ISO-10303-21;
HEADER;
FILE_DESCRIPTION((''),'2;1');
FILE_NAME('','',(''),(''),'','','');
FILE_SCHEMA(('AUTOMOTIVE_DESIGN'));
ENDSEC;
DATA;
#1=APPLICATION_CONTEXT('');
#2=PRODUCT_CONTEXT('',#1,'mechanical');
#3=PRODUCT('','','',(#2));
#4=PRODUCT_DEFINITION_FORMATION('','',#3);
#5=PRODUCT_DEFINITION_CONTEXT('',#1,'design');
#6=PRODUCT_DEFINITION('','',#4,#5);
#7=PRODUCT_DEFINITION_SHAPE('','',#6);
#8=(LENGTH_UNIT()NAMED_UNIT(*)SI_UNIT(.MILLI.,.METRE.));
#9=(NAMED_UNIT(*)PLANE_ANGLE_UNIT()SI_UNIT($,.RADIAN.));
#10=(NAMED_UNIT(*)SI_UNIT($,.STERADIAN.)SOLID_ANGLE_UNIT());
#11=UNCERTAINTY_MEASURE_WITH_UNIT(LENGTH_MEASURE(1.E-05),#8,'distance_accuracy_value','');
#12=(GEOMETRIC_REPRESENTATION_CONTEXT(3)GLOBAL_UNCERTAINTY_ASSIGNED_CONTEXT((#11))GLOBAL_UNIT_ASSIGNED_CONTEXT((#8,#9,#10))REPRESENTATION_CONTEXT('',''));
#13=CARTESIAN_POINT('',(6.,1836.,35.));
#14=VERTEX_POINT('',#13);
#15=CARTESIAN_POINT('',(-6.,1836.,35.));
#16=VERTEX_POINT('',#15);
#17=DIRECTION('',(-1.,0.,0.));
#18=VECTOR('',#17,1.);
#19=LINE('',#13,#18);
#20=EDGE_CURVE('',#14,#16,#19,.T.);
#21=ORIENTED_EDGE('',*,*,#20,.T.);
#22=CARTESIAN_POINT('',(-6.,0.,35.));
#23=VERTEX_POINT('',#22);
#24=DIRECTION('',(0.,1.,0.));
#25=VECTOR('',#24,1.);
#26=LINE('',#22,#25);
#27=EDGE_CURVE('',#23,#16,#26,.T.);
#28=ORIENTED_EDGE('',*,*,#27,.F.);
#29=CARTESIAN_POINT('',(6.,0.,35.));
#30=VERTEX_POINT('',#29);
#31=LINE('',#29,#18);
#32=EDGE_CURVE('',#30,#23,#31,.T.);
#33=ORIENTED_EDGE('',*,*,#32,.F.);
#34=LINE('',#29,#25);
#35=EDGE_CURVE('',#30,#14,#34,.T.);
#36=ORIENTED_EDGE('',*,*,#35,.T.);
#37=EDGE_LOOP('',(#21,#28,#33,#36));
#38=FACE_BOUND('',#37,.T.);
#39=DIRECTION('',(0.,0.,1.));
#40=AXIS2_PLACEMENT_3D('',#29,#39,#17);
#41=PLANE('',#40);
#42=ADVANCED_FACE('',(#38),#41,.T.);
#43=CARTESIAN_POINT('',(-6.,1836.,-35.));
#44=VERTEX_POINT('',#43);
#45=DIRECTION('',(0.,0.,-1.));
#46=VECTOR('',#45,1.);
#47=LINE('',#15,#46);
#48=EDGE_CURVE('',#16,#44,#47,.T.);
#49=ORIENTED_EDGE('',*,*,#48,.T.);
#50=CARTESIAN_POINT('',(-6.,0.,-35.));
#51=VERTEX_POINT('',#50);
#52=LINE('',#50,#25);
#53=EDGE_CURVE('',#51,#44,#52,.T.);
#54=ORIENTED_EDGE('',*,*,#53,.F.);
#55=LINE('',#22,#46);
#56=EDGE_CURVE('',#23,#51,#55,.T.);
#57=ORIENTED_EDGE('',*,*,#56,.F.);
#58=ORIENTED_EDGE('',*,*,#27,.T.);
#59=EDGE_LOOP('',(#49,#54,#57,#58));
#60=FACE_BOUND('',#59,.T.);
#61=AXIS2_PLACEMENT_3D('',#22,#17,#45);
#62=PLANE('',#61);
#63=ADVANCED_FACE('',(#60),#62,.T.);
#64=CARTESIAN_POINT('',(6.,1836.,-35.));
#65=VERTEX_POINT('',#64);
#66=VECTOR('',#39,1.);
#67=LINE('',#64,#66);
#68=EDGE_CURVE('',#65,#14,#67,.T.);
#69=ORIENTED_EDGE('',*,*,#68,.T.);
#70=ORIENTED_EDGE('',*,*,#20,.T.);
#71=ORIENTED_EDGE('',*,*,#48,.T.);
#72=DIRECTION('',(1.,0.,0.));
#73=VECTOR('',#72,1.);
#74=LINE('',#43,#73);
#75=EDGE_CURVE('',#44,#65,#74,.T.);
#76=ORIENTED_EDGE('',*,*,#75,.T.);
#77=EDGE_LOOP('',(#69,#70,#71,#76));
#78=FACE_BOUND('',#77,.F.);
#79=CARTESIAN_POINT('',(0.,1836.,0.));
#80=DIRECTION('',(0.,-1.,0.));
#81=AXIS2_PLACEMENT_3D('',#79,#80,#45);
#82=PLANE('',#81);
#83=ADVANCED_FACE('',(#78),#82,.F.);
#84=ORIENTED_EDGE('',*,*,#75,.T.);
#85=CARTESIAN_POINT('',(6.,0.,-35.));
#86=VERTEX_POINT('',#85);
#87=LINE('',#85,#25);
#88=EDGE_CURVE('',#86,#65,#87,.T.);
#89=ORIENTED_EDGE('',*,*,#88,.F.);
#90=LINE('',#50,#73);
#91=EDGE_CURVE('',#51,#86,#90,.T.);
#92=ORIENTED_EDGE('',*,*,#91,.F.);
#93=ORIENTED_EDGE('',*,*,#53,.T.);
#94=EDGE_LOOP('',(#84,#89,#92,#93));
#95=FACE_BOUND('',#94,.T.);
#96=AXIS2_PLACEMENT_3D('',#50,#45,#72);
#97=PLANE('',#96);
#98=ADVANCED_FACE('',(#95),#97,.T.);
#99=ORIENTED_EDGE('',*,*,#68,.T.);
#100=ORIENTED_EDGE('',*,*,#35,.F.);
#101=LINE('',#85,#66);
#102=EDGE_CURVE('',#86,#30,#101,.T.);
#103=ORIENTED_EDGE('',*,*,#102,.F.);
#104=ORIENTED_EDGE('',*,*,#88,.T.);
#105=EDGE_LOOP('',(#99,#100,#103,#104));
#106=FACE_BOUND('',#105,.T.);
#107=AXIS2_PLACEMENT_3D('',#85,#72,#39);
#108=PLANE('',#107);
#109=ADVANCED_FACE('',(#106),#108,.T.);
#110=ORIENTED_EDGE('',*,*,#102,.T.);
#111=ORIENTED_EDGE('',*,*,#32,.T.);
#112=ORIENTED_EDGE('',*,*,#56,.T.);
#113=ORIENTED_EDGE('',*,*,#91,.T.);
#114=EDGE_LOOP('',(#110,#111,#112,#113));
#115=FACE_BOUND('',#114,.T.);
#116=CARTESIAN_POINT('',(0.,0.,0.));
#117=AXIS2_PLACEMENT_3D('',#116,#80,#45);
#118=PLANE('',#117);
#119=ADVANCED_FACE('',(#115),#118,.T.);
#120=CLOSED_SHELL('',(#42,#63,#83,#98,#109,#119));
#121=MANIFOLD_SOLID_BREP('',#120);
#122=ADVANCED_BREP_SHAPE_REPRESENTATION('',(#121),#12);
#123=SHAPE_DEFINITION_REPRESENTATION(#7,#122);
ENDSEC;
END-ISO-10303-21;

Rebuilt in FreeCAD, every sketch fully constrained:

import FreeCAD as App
import Part
import Sketcher
from FreeCAD import Vector
Q = App.Units.Quantity

doc = App.newDocument("Part")
body = doc.addObject("PartDesign::Body", "Body")

sketch1 = doc.addObject("Sketcher::SketchObject", "Sketch")
body.addObject(sketch1)
sketch1.AttachmentSupport = (doc.XZ_Plane, [""])
sketch1.MapMode = "FlatFace"
sketch1.addGeometry([
    Part.LineSegment(Vector(-6, 35, 0), Vector(-6, -35, 0)),
    Part.LineSegment(Vector(-6, -35, 0), Vector(6, -35, 0)),
    Part.LineSegment(Vector(6, -35, 0), Vector(6, 35, 0)),
    Part.LineSegment(Vector(6, 35, 0), Vector(-6, 35, 0)),
], False)
sketch1.addConstraint([
    Sketcher.Constraint("Coincident", 0, 2, 1, 1),
    Sketcher.Constraint("Coincident", 1, 2, 2, 1),
    Sketcher.Constraint("Coincident", 2, 2, 3, 1),
    Sketcher.Constraint("Coincident", 3, 2, 0, 1),
    Sketcher.Constraint("Vertical", 0),
    Sketcher.Constraint("Horizontal", 1),
    Sketcher.Constraint("Vertical", 2),
    Sketcher.Constraint("Horizontal", 3),
    Sketcher.Constraint("Symmetric", 0, 2, 2, 2, -1, 1),
    Sketcher.Constraint("DistanceX", 1, 1, 1, 2, Q("12 mm")),
    Sketcher.Constraint("DistanceY", 0, 2, 0, 1, Q("70 mm")),
])
pad1 = doc.addObject("PartDesign::Pad", "Pad")
body.addObject(pad1)
pad1.Profile = sketch1
pad1.Length = 1836
pad1.Reversed = True

doc.recompute()
